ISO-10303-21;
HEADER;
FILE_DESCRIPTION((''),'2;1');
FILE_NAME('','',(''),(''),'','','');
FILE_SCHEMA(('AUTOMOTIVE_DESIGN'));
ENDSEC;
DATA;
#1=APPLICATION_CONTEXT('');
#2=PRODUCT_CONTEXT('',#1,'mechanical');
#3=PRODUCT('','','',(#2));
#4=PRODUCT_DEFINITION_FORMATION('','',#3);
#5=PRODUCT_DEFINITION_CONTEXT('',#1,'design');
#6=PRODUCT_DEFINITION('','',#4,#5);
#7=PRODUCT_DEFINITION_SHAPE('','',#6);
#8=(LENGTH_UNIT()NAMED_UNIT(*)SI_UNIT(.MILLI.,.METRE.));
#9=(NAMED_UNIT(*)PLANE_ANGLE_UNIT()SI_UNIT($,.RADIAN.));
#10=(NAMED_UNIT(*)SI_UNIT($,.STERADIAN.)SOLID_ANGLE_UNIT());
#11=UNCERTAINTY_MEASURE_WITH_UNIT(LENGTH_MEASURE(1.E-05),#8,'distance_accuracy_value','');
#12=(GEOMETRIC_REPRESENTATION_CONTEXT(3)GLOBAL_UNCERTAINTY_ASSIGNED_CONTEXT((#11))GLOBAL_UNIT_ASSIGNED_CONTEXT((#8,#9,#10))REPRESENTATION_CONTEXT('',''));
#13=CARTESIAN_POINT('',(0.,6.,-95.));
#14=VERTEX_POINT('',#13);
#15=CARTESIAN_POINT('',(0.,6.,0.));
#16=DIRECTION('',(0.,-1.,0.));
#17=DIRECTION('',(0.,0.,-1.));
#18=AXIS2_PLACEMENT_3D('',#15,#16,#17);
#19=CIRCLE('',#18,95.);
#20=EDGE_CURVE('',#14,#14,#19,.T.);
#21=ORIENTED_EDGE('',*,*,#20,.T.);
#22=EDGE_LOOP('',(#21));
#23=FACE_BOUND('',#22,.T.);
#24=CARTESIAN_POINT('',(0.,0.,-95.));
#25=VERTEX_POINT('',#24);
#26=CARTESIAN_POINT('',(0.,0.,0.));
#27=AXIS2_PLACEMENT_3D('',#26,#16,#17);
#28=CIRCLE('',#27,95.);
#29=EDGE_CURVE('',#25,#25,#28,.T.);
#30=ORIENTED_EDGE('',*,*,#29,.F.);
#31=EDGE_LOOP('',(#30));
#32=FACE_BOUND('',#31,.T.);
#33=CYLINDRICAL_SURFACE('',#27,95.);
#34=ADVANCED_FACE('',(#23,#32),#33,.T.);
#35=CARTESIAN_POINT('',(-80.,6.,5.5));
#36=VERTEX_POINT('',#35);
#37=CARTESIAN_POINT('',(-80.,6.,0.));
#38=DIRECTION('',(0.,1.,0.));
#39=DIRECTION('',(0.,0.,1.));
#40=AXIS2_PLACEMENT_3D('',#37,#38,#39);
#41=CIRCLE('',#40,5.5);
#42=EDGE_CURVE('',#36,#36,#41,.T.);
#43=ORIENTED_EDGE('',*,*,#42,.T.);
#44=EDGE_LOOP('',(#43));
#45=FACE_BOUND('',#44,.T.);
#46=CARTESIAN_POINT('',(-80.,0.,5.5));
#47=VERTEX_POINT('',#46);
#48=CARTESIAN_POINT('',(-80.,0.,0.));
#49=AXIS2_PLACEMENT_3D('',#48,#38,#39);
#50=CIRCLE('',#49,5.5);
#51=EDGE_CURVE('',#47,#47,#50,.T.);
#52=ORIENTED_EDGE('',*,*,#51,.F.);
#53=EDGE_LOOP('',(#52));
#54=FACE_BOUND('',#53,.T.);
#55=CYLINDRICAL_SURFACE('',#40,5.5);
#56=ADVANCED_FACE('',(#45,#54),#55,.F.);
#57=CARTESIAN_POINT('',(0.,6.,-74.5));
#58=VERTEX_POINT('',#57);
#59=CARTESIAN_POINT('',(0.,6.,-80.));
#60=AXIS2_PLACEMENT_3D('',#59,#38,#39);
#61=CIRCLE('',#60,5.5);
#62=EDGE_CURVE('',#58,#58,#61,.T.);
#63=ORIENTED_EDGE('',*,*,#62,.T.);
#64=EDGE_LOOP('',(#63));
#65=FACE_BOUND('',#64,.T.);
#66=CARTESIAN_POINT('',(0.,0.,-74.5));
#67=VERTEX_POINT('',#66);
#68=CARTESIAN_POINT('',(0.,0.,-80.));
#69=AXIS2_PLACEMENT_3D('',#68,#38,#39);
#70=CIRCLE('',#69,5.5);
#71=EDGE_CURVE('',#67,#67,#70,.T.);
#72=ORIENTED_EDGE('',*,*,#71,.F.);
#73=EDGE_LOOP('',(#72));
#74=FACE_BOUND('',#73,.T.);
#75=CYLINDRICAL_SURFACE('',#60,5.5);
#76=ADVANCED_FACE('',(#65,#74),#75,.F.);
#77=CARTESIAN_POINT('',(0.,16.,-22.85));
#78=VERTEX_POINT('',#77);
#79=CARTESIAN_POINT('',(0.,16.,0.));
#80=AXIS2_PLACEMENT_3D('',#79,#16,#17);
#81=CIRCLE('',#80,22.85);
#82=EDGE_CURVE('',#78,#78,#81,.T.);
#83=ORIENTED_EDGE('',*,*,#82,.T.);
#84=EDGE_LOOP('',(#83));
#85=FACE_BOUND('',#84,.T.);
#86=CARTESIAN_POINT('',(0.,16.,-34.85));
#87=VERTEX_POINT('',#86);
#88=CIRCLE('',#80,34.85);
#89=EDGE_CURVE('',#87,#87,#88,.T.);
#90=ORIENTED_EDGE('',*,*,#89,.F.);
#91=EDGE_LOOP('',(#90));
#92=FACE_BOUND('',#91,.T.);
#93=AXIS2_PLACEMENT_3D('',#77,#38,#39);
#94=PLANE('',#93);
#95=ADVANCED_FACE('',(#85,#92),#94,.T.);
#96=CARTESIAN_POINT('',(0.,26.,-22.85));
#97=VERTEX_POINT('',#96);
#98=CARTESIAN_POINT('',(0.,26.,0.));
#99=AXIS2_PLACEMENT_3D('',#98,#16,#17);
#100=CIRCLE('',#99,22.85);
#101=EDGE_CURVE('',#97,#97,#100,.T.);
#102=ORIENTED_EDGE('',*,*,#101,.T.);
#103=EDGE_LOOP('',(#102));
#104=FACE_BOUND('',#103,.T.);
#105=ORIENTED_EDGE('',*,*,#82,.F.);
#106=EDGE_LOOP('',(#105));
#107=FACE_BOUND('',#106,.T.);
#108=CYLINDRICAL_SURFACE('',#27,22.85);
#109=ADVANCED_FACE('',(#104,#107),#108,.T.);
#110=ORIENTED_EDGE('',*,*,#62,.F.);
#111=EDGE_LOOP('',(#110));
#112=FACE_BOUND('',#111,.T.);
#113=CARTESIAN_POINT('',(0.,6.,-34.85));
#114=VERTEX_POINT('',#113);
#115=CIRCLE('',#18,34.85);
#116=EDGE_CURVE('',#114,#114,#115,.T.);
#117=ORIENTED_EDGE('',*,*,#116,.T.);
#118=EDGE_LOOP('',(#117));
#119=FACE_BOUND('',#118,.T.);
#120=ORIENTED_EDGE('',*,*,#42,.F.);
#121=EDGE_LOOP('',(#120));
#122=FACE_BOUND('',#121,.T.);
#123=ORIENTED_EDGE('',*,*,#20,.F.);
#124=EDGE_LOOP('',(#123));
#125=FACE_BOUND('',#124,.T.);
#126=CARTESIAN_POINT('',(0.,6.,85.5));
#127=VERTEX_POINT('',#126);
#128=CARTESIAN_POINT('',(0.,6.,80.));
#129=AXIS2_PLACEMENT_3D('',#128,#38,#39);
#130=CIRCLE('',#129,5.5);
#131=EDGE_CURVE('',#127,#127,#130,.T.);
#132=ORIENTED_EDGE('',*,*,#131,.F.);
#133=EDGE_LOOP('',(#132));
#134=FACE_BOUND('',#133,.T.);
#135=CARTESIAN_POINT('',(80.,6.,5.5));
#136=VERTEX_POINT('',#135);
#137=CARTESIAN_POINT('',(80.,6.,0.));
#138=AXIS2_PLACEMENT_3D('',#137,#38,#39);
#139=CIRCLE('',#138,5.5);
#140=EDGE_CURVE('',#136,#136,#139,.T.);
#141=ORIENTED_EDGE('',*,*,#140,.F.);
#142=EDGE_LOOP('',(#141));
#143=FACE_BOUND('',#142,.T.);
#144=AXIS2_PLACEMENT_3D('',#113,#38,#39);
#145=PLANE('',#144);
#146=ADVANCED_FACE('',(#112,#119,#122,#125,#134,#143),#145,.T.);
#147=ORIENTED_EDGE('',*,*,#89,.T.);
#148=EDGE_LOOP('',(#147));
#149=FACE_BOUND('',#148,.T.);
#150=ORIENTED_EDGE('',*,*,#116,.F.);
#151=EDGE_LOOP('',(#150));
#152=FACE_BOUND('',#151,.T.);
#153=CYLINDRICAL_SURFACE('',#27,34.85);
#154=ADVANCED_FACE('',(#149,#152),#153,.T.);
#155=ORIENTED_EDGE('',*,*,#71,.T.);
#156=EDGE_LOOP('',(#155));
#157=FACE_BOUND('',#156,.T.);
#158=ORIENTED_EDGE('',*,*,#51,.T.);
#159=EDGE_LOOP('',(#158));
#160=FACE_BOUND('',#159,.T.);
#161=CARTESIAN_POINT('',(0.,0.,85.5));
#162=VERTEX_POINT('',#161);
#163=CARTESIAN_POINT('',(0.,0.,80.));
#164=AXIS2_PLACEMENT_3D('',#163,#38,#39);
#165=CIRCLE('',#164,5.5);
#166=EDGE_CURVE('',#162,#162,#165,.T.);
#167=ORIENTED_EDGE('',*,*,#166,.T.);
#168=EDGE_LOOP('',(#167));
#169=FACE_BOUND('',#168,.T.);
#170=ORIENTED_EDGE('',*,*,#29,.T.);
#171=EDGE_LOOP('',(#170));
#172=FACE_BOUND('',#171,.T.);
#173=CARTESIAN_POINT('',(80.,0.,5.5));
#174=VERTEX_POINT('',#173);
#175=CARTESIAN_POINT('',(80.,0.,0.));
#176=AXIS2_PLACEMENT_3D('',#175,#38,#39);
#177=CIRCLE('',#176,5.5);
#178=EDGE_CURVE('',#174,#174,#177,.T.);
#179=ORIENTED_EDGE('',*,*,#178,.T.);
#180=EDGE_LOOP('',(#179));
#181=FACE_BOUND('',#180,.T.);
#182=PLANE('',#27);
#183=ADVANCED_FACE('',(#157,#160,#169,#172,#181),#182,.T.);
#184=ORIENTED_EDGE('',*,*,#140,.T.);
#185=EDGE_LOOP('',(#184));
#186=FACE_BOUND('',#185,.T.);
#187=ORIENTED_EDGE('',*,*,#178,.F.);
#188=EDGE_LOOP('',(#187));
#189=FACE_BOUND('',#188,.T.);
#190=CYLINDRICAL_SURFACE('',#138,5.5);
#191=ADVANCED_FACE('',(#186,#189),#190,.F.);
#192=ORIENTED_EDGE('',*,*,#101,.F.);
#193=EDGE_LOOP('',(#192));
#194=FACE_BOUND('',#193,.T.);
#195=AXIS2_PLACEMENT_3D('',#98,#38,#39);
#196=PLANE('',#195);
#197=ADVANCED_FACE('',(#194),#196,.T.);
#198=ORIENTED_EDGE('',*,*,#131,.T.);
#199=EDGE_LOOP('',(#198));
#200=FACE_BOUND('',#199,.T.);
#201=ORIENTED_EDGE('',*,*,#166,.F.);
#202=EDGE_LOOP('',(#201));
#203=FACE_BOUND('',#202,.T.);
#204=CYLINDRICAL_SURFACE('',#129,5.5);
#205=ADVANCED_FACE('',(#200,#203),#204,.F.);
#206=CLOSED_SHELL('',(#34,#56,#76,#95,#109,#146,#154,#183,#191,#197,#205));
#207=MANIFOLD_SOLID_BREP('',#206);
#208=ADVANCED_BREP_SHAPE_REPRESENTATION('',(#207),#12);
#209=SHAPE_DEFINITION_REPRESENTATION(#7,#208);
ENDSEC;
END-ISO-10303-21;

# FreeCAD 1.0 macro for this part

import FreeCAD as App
import Part
import Sketcher

V = App.Vector

doc = App.newDocument("Part")
body = doc.addObject("PartDesign::Body", "Body")

sketch1 = body.newObject("Sketcher::SketchObject", "Sketch")
sketch1.AttachmentSupport = (doc.getObject("YZ_Plane"), [""])
sketch1.MapMode = "FlatFace"
sketch1.addGeometry(Part.LineSegment(V(6, -95, 0), V(6, -35, 0)), False)
sketch1.addGeometry(Part.LineSegment(V(6, -35, 0), V(16, -35, 0)), False)
sketch1.addGeometry(Part.LineSegment(V(16, -35, 0), V(16, -23, 0)), False)
sketch1.addGeometry(Part.LineSegment(V(16, -23, 0), V(26, -23, 0)), False)
sketch1.addGeometry(Part.LineSegment(V(26, -23, 0), V(26, 0, 0)), False)
sketch1.addGeometry(Part.LineSegment(V(26, 0, 0), V(0, 0, 0)), False)
sketch1.addGeometry(Part.LineSegment(V(0, 0, 0), V(0, -95, 0)), False)
sketch1.addGeometry(Part.LineSegment(V(0, -95, 0), V(6, -95, 0)), False)
sketch1.addConstraint(Sketcher.Constraint("Coincident", 0, 2, 1, 1))
sketch1.addConstraint(Sketcher.Constraint("Coincident", 1, 2, 2, 1))
sketch1.addConstraint(Sketcher.Constraint("Coincident", 2, 2, 3, 1))
sketch1.addConstraint(Sketcher.Constraint("Coincident", 3, 2, 4, 1))
sketch1.addConstraint(Sketcher.Constraint("Coincident", 4, 2, 5, 1))
sketch1.addConstraint(Sketcher.Constraint("Coincident", 5, 2, 6, 1))
sketch1.addConstraint(Sketcher.Constraint("Coincident", 6, 2, 7, 1))
sketch1.addConstraint(Sketcher.Constraint("Coincident", 7, 2, 0, 1))
sketch1.addConstraint(Sketcher.Constraint("Vertical", 0))
sketch1.addConstraint(Sketcher.Constraint("Horizontal", 1))
sketch1.addConstraint(Sketcher.Constraint("Vertical", 2))
sketch1.addConstraint(Sketcher.Constraint("Horizontal", 3))
sketch1.addConstraint(Sketcher.Constraint("Vertical", 4))
sketch1.addConstraint(Sketcher.Constraint("Horizontal", 5))
sketch1.addConstraint(Sketcher.Constraint("Vertical", 6))
sketch1.addConstraint(Sketcher.Constraint("Horizontal", 7))
sketch1.addConstraint(Sketcher.Constraint("Coincident", 5, 2, -1, 1))
sketch1.addConstraint(Sketcher.Constraint("Equal", 1, 3))
sketch1.addConstraint(Sketcher.Constraint("DistanceX", 1, 1, 1, 2, 10.0))
sketch1.addConstraint(Sketcher.Constraint("DistanceX", 5, 2, 5, 1, 26.0))
sketch1.addConstraint(Sketcher.Constraint("DistanceY", 2, 1, 2, 2, 12.0))
sketch1.addConstraint(Sketcher.Constraint("DistanceY", 6, 2, 6, 1, 95.0))
sketch1.addConstraint(Sketcher.Constraint("DistanceY", 0, 1, 0, 2, 60.15))
revolution = body.newObject("PartDesign::Revolution", "Revolution")
revolution.Profile = sketch1
revolution.ReferenceAxis = (sketch1, ["H_Axis"])
revolution.Angle = 360

sketch2 = body.newObject("Sketcher::SketchObject", "Sketch001")
sketch2.AttachmentSupport = (doc.getObject("XZ_Plane"), [""])
sketch2.MapMode = "FlatFace"
sketch2.AttachmentOffset = App.Placement(V(0, 0, -6), App.Rotation())
sketch2.addGeometry(Part.Circle(V(0, -80, 0), V(0, 0, 1), 6), False)
sketch2.addConstraint(Sketcher.Constraint("PointOnObject", 0, 3, -2))
sketch2.addConstraint(Sketcher.Constraint("Diameter", 0, 11.0))
sketch2.addConstraint(Sketcher.Constraint("DistanceY", 0, 3, -1, 1, 80.0))
doc.recompute()
hole = body.newObject("PartDesign::Hole", "Hole")
hole.Profile = sketch2
hole.ThreadType = "None"
hole.Diameter = 11
hole.DepthType = "ThroughAll"
hole.Reversed = True
doc.recompute()

polarpattern = body.newObject("PartDesign::PolarPattern", "PolarPattern")
polarpattern.Originals = [hole]
polarpattern.Axis = (doc.getObject("Y_Axis"), [""])
polarpattern.Angle = 360
polarpattern.Occurrences = 4
body.Tip = polarpattern

doc.recompute()
